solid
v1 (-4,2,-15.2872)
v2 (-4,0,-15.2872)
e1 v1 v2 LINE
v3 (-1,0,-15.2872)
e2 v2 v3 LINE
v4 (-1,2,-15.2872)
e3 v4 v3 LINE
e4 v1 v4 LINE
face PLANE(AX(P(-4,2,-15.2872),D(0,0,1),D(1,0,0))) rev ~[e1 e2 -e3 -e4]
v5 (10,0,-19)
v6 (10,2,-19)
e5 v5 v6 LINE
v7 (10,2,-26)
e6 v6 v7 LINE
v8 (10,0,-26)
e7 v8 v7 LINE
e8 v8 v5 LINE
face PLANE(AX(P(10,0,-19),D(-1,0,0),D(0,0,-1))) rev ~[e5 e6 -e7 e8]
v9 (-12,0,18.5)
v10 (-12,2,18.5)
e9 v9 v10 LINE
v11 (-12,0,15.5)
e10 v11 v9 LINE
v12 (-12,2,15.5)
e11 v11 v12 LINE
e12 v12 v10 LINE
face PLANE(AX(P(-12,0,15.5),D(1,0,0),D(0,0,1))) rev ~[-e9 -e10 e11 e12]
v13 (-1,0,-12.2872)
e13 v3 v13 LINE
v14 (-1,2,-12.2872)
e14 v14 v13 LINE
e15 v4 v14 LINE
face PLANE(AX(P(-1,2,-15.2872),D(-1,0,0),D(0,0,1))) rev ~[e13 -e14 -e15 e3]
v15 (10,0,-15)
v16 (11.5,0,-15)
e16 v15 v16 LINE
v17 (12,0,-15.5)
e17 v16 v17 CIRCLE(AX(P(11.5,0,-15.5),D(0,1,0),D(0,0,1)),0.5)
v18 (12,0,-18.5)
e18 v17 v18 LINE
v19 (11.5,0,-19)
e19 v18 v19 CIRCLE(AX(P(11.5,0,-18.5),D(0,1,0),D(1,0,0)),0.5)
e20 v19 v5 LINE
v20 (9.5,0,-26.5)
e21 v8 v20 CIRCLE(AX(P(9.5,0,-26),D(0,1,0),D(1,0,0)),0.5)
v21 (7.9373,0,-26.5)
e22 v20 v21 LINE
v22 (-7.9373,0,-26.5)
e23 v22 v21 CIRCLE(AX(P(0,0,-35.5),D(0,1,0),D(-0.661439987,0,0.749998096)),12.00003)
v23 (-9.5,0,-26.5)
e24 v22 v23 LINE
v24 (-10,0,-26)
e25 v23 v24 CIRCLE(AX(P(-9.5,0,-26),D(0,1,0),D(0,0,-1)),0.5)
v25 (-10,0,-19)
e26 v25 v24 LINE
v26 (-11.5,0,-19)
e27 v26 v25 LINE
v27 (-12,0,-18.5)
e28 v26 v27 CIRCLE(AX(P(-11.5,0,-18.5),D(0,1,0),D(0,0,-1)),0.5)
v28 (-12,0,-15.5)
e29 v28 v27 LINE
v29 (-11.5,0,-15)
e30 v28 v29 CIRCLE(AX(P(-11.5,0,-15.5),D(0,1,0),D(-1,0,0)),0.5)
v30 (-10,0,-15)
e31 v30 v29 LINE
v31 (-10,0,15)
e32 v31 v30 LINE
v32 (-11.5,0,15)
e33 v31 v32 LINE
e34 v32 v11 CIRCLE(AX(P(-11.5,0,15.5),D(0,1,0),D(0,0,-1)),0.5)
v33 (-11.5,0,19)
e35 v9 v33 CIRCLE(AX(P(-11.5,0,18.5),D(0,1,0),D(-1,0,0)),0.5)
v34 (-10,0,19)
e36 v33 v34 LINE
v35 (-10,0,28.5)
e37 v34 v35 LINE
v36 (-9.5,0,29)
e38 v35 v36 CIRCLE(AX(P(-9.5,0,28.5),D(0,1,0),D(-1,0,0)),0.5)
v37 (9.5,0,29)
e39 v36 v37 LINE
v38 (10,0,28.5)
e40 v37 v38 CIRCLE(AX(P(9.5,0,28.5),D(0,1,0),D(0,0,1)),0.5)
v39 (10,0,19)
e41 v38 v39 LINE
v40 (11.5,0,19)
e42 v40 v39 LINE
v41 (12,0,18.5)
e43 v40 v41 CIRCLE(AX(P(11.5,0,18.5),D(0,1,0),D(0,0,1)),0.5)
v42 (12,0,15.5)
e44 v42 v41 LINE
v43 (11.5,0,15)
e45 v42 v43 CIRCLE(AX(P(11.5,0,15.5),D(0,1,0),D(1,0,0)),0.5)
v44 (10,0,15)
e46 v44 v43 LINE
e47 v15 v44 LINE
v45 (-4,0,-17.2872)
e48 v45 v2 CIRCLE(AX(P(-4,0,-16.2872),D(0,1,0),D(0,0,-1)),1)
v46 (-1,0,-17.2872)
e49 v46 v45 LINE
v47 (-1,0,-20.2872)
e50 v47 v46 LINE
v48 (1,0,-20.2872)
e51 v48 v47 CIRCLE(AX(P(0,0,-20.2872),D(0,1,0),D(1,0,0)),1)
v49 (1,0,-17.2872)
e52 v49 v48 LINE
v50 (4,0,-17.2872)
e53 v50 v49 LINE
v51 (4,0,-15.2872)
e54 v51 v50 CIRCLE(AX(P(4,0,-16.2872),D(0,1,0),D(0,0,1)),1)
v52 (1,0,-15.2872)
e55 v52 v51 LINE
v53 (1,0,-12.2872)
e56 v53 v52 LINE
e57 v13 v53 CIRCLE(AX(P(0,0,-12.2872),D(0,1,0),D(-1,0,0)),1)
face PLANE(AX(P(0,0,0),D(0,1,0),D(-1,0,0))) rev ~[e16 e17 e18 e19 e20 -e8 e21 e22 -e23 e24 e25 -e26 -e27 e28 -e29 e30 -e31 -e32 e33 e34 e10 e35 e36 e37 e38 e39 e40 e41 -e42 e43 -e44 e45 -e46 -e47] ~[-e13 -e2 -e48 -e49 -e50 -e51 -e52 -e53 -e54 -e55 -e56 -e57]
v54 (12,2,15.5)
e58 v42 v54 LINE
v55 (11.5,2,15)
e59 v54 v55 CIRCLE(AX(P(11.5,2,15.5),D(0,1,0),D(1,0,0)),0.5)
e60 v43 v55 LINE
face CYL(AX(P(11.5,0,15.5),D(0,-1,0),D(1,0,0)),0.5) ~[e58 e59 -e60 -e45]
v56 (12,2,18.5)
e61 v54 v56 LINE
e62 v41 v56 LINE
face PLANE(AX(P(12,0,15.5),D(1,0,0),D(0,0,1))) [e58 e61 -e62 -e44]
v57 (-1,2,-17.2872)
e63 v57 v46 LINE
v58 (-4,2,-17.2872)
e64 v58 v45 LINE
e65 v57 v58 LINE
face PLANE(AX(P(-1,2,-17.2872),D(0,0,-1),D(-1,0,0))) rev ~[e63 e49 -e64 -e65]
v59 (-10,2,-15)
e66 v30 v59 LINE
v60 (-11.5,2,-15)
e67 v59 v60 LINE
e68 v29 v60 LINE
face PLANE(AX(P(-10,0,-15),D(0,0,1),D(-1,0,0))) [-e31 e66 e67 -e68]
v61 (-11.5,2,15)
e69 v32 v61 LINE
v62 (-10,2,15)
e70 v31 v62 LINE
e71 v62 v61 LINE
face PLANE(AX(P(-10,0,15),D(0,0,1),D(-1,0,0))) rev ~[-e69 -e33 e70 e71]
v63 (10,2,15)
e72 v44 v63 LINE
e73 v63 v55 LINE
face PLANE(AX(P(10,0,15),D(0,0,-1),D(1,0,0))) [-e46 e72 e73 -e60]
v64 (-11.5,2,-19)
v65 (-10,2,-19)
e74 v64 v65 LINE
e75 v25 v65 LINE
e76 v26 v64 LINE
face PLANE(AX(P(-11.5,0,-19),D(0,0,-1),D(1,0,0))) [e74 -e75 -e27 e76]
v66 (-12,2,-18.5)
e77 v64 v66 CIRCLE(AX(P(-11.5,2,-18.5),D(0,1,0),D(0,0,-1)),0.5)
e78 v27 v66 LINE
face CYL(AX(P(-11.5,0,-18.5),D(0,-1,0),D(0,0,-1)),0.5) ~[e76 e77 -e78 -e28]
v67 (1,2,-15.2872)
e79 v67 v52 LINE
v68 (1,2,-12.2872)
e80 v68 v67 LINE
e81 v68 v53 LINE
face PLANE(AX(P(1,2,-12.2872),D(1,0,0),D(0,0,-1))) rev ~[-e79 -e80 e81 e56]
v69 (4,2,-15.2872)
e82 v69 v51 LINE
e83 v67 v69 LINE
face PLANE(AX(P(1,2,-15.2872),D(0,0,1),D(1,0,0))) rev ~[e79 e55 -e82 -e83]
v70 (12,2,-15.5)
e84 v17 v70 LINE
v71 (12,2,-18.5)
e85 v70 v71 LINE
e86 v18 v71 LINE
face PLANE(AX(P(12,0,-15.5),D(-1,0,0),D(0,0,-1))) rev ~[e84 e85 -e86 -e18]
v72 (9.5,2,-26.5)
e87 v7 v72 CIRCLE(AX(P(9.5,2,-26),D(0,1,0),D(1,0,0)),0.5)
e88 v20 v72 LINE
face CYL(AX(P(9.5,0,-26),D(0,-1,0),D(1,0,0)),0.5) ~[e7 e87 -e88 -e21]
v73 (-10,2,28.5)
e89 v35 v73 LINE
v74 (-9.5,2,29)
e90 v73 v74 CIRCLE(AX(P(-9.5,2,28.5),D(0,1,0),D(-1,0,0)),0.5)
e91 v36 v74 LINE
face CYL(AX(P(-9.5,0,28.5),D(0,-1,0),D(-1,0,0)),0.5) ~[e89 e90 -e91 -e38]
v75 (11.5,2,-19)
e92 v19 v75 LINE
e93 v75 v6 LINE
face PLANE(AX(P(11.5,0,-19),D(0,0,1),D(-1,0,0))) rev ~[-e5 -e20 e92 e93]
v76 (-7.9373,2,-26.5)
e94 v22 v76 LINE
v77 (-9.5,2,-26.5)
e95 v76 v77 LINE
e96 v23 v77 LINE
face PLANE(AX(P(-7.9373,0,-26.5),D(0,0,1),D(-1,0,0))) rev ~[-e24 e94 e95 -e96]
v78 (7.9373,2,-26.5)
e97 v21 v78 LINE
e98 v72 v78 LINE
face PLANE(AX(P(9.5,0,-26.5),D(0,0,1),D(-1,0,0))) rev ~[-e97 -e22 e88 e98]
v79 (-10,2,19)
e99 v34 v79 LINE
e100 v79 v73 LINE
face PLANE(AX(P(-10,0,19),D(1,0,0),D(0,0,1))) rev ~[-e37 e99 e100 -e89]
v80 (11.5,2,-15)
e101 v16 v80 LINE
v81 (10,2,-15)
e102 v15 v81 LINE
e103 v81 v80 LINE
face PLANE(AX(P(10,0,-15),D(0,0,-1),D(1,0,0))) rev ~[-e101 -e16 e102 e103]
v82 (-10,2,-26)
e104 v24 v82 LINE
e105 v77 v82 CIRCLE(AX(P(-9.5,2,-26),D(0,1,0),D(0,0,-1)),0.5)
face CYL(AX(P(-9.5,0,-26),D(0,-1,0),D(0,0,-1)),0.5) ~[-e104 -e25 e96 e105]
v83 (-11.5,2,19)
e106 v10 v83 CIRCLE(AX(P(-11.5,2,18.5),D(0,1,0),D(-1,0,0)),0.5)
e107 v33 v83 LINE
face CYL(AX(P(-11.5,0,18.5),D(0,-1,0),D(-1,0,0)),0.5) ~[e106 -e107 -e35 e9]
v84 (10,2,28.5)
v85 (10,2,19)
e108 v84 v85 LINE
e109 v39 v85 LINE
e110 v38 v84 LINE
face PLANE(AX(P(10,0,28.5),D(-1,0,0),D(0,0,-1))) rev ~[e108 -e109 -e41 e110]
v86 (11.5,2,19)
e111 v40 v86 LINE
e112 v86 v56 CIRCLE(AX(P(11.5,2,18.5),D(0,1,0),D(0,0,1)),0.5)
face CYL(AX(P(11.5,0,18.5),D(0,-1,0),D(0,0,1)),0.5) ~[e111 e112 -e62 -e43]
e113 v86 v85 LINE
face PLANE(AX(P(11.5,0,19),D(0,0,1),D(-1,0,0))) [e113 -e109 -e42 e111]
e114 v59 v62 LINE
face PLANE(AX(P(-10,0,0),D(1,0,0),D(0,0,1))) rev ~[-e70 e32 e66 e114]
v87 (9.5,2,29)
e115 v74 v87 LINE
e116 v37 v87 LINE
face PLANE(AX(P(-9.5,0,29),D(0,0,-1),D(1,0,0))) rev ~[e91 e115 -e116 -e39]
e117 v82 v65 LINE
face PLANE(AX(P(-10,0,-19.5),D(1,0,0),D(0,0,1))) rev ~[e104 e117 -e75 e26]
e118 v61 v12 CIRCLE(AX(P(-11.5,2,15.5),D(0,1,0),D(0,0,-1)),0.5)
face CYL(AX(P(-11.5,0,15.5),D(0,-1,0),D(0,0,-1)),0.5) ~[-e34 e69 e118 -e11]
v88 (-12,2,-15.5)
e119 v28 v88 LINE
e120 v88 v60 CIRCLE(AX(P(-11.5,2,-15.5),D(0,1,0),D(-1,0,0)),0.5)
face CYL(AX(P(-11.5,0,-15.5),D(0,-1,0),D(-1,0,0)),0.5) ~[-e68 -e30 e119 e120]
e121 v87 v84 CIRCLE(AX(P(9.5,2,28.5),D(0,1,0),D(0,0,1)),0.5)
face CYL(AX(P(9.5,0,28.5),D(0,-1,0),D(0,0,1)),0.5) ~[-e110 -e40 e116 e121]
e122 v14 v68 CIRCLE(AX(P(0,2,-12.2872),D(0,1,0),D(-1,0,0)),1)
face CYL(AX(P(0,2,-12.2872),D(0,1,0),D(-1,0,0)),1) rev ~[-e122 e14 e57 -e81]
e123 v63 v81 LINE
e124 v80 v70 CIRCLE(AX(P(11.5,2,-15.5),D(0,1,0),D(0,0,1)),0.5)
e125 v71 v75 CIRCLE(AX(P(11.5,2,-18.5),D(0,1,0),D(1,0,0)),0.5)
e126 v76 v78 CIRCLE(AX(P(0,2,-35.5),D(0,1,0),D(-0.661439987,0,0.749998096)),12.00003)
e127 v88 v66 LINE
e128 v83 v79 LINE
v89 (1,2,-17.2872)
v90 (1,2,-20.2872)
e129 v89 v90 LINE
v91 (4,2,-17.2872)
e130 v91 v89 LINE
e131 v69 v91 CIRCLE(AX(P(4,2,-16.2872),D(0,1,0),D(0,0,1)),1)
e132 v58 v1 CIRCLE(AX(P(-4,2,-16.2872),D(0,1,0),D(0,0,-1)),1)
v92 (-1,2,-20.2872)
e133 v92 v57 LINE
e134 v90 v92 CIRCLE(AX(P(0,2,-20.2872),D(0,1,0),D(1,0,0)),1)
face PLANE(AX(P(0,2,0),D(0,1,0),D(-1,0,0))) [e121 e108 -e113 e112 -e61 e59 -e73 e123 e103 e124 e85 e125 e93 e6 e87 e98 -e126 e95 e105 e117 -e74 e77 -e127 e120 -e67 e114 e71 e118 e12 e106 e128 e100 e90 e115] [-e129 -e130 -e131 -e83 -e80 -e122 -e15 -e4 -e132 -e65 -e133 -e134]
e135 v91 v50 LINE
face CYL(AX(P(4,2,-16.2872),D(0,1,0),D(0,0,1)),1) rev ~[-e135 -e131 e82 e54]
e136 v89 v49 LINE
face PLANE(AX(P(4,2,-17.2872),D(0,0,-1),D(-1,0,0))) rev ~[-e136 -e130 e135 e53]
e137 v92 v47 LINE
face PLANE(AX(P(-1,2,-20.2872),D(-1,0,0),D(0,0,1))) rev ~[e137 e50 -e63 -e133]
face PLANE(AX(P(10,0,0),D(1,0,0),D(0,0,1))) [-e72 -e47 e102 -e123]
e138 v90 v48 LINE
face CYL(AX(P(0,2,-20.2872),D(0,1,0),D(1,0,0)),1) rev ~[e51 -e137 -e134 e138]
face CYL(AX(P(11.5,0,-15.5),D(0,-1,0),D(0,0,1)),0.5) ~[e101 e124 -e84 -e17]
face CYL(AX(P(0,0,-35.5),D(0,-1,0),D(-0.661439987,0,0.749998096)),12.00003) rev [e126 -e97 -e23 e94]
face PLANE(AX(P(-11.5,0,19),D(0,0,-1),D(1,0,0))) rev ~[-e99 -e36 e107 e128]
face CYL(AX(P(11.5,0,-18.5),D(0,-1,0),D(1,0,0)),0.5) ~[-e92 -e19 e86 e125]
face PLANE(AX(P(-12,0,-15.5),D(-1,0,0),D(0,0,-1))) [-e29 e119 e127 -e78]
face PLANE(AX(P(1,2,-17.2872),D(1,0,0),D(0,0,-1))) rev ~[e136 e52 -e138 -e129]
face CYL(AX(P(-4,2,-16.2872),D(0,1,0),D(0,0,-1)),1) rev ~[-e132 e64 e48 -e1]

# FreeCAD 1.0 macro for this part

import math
import FreeCAD as App
import Part
import Sketcher

V = App.Vector
Q = App.Units.Quantity

doc = App.newDocument("Part")
body = doc.addObject("PartDesign::Body", "Body")

sketch1 = body.newObject("Sketcher::SketchObject", "Sketch")
sketch1.AttachmentSupport = (doc.getObject("XZ_Plane"), [""])
sketch1.MapMode = "FlatFace"
sketch1.addGeometry([
    Part.ArcOfCircle(Part.Circle(V(-9.5, 28.5, 0), V(0, 0, 1), 0.5), math.radians(90), math.radians(180)),
    Part.LineSegment(V(-9.5, 29, 0), V(9.5, 29, 0)),
    Part.ArcOfCircle(Part.Circle(V(9.5, 28.5, 0), V(0, 0, 1), 0.5), math.radians(0), math.radians(90)),
    Part.LineSegment(V(10, 28.5, 0), V(10, 19, 0)),
    Part.LineSegment(V(10, 19, 0), V(11.5, 19, 0)),
    Part.ArcOfCircle(Part.Circle(V(11.5, 18.5, 0), V(0, 0, 1), 0.5), math.radians(0), math.radians(90)),
    Part.LineSegment(V(12, 18.5, 0), V(12, 15.5, 0)),
    Part.ArcOfCircle(Part.Circle(V(11.5, 15.5, 0), V(0, 0, 1), 0.5), math.radians(-90), math.radians(0)),
    Part.LineSegment(V(11.5, 15, 0), V(10, 15, 0)),
    Part.LineSegment(V(10, 15, 0), V(10, -15, 0)),
    Part.LineSegment(V(10, -15, 0), V(11.5, -15, 0)),
    Part.ArcOfCircle(Part.Circle(V(11.5, -15.5, 0), V(0, 0, 1), 0.5), math.radians(0), math.radians(90)),
    Part.LineSegment(V(12, -15.5, 0), V(12, -18.5, 0)),
    Part.ArcOfCircle(Part.Circle(V(11.5, -18.5, 0), V(0, 0, 1), 0.5), math.radians(-90), math.radians(0)),
    Part.LineSegment(V(11.5, -19, 0), V(10, -19, 0)),
    Part.LineSegment(V(10, -19, 0), V(10, -26, 0)),
    Part.ArcOfCircle(Part.Circle(V(9.5, -26, 0), V(0, 0, 1), 0.5), math.radians(-90), math.radians(0)),
    Part.LineSegment(V(9.5, -26.5, 0), V(7.9, -26.5, 0)),
    Part.ArcOfCircle(Part.Circle(V(0, -35.5, 0), V(0, 0, 1), 12), math.radians(49), math.radians(131)),
    Part.LineSegment(V(-7.9, -26.5, 0), V(-9.5, -26.5, 0)),
    Part.ArcOfCircle(Part.Circle(V(-9.5, -26, 0), V(0, 0, 1), 0.5), math.radians(180), math.radians(270)),
    Part.LineSegment(V(-10, -26, 0), V(-10, -19, 0)),
    Part.LineSegment(V(-10, -19, 0), V(-11.5, -19, 0)),
    Part.ArcOfCircle(Part.Circle(V(-11.5, -18.5, 0), V(0, 0, 1), 0.5), math.radians(180), math.radians(270)),
    Part.LineSegment(V(-12, -18.5, 0), V(-12, -15.5, 0)),
    Part.ArcOfCircle(Part.Circle(V(-11.5, -15.5, 0), V(0, 0, 1), 0.5), math.radians(90), math.radians(180)),
    Part.LineSegment(V(-11.5, -15, 0), V(-10, -15, 0)),
    Part.LineSegment(V(-10, -15, 0), V(-10, 15, 0)),
    Part.LineSegment(V(-10, 15, 0), V(-11.5, 15, 0)),
    Part.ArcOfCircle(Part.Circle(V(-11.5, 15.5, 0), V(0, 0, 1), 0.5), math.radians(180), math.radians(270)),
    Part.LineSegment(V(-12, 15.5, 0), V(-12, 18.5, 0)),
    Part.ArcOfCircle(Part.Circle(V(-11.5, 18.5, 0), V(0, 0, 1), 0.5), math.radians(90), math.radians(180)),
    Part.LineSegment(V(-11.5, 19, 0), V(-10, 19, 0)),
    Part.LineSegment(V(-10, 19, 0), V(-10, 28.5, 0)),
], False)
sketch1.addConstraint([
    Sketcher.Constraint("Tangent", 0, 1, 1, 1),
    Sketcher.Constraint("Tangent", 1, 2, 2, 2),
    Sketcher.Constraint("Tangent", 2, 1, 3, 1),
    Sketcher.Constraint("Coincident", 3, 2, 4, 1),
    Sketcher.Constraint("Tangent", 4, 2, 5, 2),
    Sketcher.Constraint("Tangent", 5, 1, 6, 1),
    Sketcher.Constraint("Tangent", 6, 2, 7, 2),
    Sketcher.Constraint("Tangent", 7, 1, 8, 1),
    Sketcher.Constraint("Coincident", 8, 2, 9, 1),
    Sketcher.Constraint("Coincident", 9, 2, 10, 1),
    Sketcher.Constraint("Tangent", 10, 2, 11, 2),
    Sketcher.Constraint("Tangent", 11, 1, 12, 1),
    Sketcher.Constraint("Tangent", 12, 2, 13, 2),
    Sketcher.Constraint("Tangent", 13, 1, 14, 1),
    Sketcher.Constraint("Coincident", 14, 2, 15, 1),
    Sketcher.Constraint("Tangent", 15, 2, 16, 2),
    Sketcher.Constraint("Tangent", 16, 1, 17, 1),
    Sketcher.Constraint("Coincident", 17, 2, 18, 1),
    Sketcher.Constraint("Coincident", 18, 2, 19, 1),
    Sketcher.Constraint("Tangent", 19, 2, 20, 2),
    Sketcher.Constraint("Tangent", 20, 1, 21, 1),
    Sketcher.Constraint("Coincident", 21, 2, 22, 1),
    Sketcher.Constraint("Tangent", 22, 2, 23, 2),
    Sketcher.Constraint("Tangent", 23, 1, 24, 1),
    Sketcher.Constraint("Tangent", 24, 2, 25, 2),
    Sketcher.Constraint("Tangent", 25, 1, 26, 1),
    Sketcher.Constraint("Coincident", 26, 2, 27, 1),
    Sketcher.Constraint("Coincident", 27, 2, 28, 1),
    Sketcher.Constraint("Tangent", 28, 2, 29, 2),
    Sketcher.Constraint("Tangent", 29, 1, 30, 1),
    Sketcher.Constraint("Tangent", 30, 2, 31, 2),
    Sketcher.Constraint("Tangent", 31, 1, 32, 1),
    Sketcher.Constraint("Coincident", 32, 2, 33, 1),
    Sketcher.Constraint("Tangent", 33, 2, 0, 2),
    Sketcher.Constraint("Horizontal", 1),
    Sketcher.Constraint("Vertical", 3),
    Sketcher.Constraint("Horizontal", 4),
    Sketcher.Constraint("Vertical", 6),
    Sketcher.Constraint("Horizontal", 8),
    Sketcher.Constraint("Vertical", 9),
    Sketcher.Constraint("Horizontal", 10),
    Sketcher.Constraint("Vertical", 12),
    Sketcher.Constraint("Horizontal", 14),
    Sketcher.Constraint("Vertical", 15),
    Sketcher.Constraint("Horizontal", 17),
    Sketcher.Constraint("Horizontal", 19),
    Sketcher.Constraint("Vertical", 21),
    Sketcher.Constraint("Horizontal", 22),
    Sketcher.Constraint("Vertical", 24),
    Sketcher.Constraint("Horizontal", 26),
    Sketcher.Constraint("Vertical", 27),
    Sketcher.Constraint("Horizontal", 28),
    Sketcher.Constraint("Vertical", 30),
    Sketcher.Constraint("Horizontal", 32),
    Sketcher.Constraint("Vertical", 33),
    Sketcher.Constraint("Equal", 0, 2),
    Sketcher.Constraint("Equal", 2, 5),
    Sketcher.Constraint("Equal", 5, 7),
    Sketcher.Constraint("Equal", 7, 11),
    Sketcher.Constraint("Equal", 11, 13),
    Sketcher.Constraint("Equal", 13, 16),
    Sketcher.Constraint("Equal", 16, 20),
    Sketcher.Constraint("Equal", 20, 23),
    Sketcher.Constraint("Equal", 23, 25),
    Sketcher.Constraint("Equal", 25, 29),
    Sketcher.Constraint("Equal", 29, 31),
    Sketcher.Constraint("Symmetric", 5, 3, 23, 3, -1, 1),
    Sketcher.Constraint("Symmetric", 11, 3, 29, 3, -1, 1),
    Sketcher.Constraint("Symmetric", 8, 2, 26, 2, -1, 1),
    Sketcher.Constraint("Symmetric", 14, 2, 32, 2, -1, 1),
    Sketcher.Constraint("Symmetric", 16, 3, 20, 3, -2),
    Sketcher.Constraint("Symmetric", 13, 3, 23, 3, -2),
    Sketcher.Constraint("PointOnObject", 18, 3, -2),
    Sketcher.Constraint("Horizontal", 11, 3, 25, 3),
    Sketcher.Constraint("Vertical", 2, 3, 16, 3),
    Sketcher.Constraint("Vertical", 3, 2, 8, 2),
    Sketcher.Constraint("Radius", 18, Q("12 mm")),
    Sketcher.Constraint("Radius", 0, Q("0.5 mm")),
    Sketcher.Constraint("DistanceX", -1, 1, 5, 1, Q("12 mm")),
    Sketcher.Constraint("DistanceY", -1, 1, 7, 1, Q("15 mm")),
    Sketcher.Constraint("DistanceX", 2, 3, 5, 3, Q("2 mm")),
    Sketcher.Constraint("DistanceY", 7, 1, 4, 2, Q("4 mm")),
    Sketcher.Constraint("DistanceY", 18, 3, 18, 2, Q("9 mm")),
    Sketcher.Constraint("DistanceY", 15, 2, 15, 1, Q("7 mm")),
    Sketcher.Constraint("DistanceY", 3, 2, 3, 1, Q("9.5 mm")),
])
pad1 = body.newObject("PartDesign::Pad", "Pad")
pad1.Profile = sketch1
pad1.Length = 2
pad1.Reversed = True

sketch2 = body.newObject("Sketcher::SketchObject", "Sketch001")
sketch2.AttachmentSupport = (doc.getObject("XZ_Plane"), [""])
sketch2.MapMode = "FlatFace"
sketch2.AttachmentOffset = App.Placement(V(0, 0, -2), App.Rotation())
sketch2.addGeometry([
    Part.ArcOfCircle(Part.Circle(V(-4, -16.3, 0), V(0, 0, 1), 1), math.radians(90), math.radians(270)),
    Part.LineSegment(V(-4, -15.3, 0), V(-1, -15.3, 0)),
    Part.LineSegment(V(-1, -15.3, 0), V(-1, -12.3, 0)),
    Part.ArcOfCircle(Part.Circle(V(0, -12.3, 0), V(0, 0, 1), 1), math.radians(0), math.radians(180)),
    Part.LineSegment(V(1, -12.3, 0), V(1, -15.3, 0)),
    Part.LineSegment(V(1, -15.3, 0), V(4, -15.3, 0)),
    Part.ArcOfCircle(Part.Circle(V(4, -16.3, 0), V(0, 0, 1), 1), math.radians(-90), math.radians(90)),
    Part.LineSegment(V(4, -17.3, 0), V(1, -17.3, 0)),
    Part.LineSegment(V(1, -17.3, 0), V(1, -20.3, 0)),
    Part.ArcOfCircle(Part.Circle(V(0, -20.3, 0), V(0, 0, 1), 1), math.radians(180), math.radians(360)),
    Part.LineSegment(V(-1, -20.3, 0), V(-1, -17.3, 0)),
    Part.LineSegment(V(-1, -17.3, 0), V(-4, -17.3, 0)),
], False)
sketch2.addConstraint([
    Sketcher.Constraint("Tangent", 0, 1, 1, 1),
    Sketcher.Constraint("Coincident", 1, 2, 2, 1),
    Sketcher.Constraint("Tangent", 2, 2, 3, 2),
    Sketcher.Constraint("Tangent", 3, 1, 4, 1),
    Sketcher.Constraint("Coincident", 4, 2, 5, 1),
    Sketcher.Constraint("Tangent", 5, 2, 6, 2),
    Sketcher.Constraint("Tangent", 6, 1, 7, 1),
    Sketcher.Constraint("Coincident", 7, 2, 8, 1),
    Sketcher.Constraint("Tangent", 8, 2, 9, 2),
    Sketcher.Constraint("Tangent", 9, 1, 10, 1),
    Sketcher.Constraint("Coincident", 10, 2, 11, 1),
    Sketcher.Constraint("Tangent", 11, 2, 0, 2),
    Sketcher.Constraint("Horizontal", 1),
    Sketcher.Constraint("Vertical", 2),
    Sketcher.Constraint("Vertical", 4),
    Sketcher.Constraint("Horizontal", 5),
    Sketcher.Constraint("Horizontal", 7),
    Sketcher.Constraint("Vertical", 8),
    Sketcher.Constraint("Vertical", 10),
    Sketcher.Constraint("Horizontal", 11),
    Sketcher.Constraint("Equal", 0, 3),
    Sketcher.Constraint("Equal", 3, 6),
    Sketcher.Constraint("Equal", 6, 9),
    Sketcher.Constraint("Symmetric", 0, 3, 6, 3, -2),
    Sketcher.Constraint("PointOnObject", 3, 3, -2),
    Sketcher.Constraint("PointOnObject", 9, 3, -2),
    Sketcher.Constraint("Equal", 11, 2),
    Sketcher.Constraint("Equal", 4, 8),
    Sketcher.Constraint("Radius", 0, Q("1 mm")),
    Sketcher.Constraint("DistanceX", 0, 3, -1, 1, Q("4 mm")),
    Sketcher.Constraint("DistanceY", 0, 3, -1, 1, Q("16.2872 mm")),
])
pocket1 = body.newObject("PartDesign::Pocket", "Pocket")
pocket1.Profile = sketch2
pocket1.Length = 2
pocket1.Reversed = True

doc.recompute()
